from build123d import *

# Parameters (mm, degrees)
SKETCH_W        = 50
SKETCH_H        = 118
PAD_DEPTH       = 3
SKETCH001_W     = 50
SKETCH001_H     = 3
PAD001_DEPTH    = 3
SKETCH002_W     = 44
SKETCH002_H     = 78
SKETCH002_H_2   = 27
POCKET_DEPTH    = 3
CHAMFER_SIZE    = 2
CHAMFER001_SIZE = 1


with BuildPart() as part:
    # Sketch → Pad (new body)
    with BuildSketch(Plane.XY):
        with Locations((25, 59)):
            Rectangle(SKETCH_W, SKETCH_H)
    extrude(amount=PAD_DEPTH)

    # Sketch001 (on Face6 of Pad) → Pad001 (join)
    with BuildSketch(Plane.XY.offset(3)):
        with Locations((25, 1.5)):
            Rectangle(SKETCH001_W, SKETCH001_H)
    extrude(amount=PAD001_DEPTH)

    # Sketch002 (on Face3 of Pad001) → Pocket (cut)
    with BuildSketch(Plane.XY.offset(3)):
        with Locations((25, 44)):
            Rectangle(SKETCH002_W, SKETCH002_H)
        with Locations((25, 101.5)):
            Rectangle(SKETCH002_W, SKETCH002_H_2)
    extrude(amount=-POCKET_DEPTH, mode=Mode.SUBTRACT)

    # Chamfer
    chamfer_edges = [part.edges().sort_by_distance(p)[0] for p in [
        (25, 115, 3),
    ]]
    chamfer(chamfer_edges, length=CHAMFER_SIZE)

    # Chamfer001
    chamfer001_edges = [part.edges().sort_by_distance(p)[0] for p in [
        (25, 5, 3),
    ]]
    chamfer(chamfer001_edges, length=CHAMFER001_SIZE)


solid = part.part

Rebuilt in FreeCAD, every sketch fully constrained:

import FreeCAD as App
import Part
import Sketcher
from FreeCAD import Vector


def edges_at(feature, points):
    """Names of the edges that pass closest to the given points."""
    edges = feature.Shape.Edges
    near = lambda p: min(range(len(edges)), key=lambda i: edges[i].distToShape(Part.Vertex(*p))[0])
    return sorted({f"Edge{near(p) + 1}" for p in points})


def add_polygon(sketch, points):
    """Adds a closed chain of lines whose ends are joined by coincident constraints."""
    first, n = sketch.GeometryCount, len(points)
    for a, b in zip(points, points[1:] + points[:1]):
        sketch.addGeometry(Part.LineSegment(App.Vector(*a, 0), App.Vector(*b, 0)), False)
    for i in range(n):
        sketch.addConstraint(Sketcher.Constraint("Coincident", first + i, 2, first + (i + 1) % n, 1))

doc = App.newDocument("Part")
body = doc.addObject("PartDesign::Body", "Body")

sketch1 = body.newObject("Sketcher::SketchObject", "Sketch")
sketch1.AttachmentSupport = (doc.getObject("XY_Plane"), [""])
sketch1.MapMode = "FlatFace"
add_polygon(sketch1, [(0, 118), (0, 0), (50, 0), (50, 118)])
sketch1.addConstraint([
    Sketcher.Constraint("Vertical", 0),
    Sketcher.Constraint("Horizontal", 1),
    Sketcher.Constraint("Vertical", 2),
    Sketcher.Constraint("Horizontal", 3),
    Sketcher.Constraint("Coincident", 0, 2, -1, 1),
    Sketcher.Constraint("DistanceX", 1, 1, 1, 2, 50.0),
    Sketcher.Constraint("DistanceY", 0, 2, 0, 1, 118.0),
])
pad1 = body.newObject("PartDesign::Pad", "Pad")
pad1.Profile = sketch1
pad1.Length = 3

sketch2 = body.newObject("Sketcher::SketchObject", "Sketch001")
sketch2.AttachmentSupport = (doc.getObject("XY_Plane"), [""])
sketch2.MapMode = "FlatFace"
sketch2.AttachmentOffset = App.Placement(Vector(0, 0, 3), App.Rotation())
add_polygon(sketch2, [(0, 3), (0, 0), (50, 0), (50, 3)])
sketch2.addConstraint([
    Sketcher.Constraint("Vertical", 0),
    Sketcher.Constraint("Horizontal", 1),
    Sketcher.Constraint("Vertical", 2),
    Sketcher.Constraint("Horizontal", 3),
    Sketcher.Constraint("Coincident", 0, 2, -1, 1),
    Sketcher.Constraint("DistanceX", 1, 1, 1, 2, 50.0),
    Sketcher.Constraint("DistanceY", 0, 2, 0, 1, 3.0),
])
pad2 = body.newObject("PartDesign::Pad", "Pad001")
pad2.Profile = sketch2
pad2.Length = 3

sketch3 = body.newObject("Sketcher::SketchObject", "Sketch002")
sketch3.AttachmentSupport = (doc.getObject("XY_Plane"), [""])
sketch3.MapMode = "FlatFace"
sketch3.AttachmentOffset = App.Placement(Vector(0, 0, 3), App.Rotation())
add_polygon(sketch3, [(3, 83), (3, 5), (47, 5), (47, 83)])
add_polygon(sketch3, [(3, 115), (3, 88), (47, 88), (47, 115)])
sketch3.addConstraint([
    Sketcher.Constraint("Vertical", 0),
    Sketcher.Constraint("Horizontal", 1),
    Sketcher.Constraint("Vertical", 2),
    Sketcher.Constraint("Horizontal", 3),
    Sketcher.Constraint("Vertical", 4),
    Sketcher.Constraint("Horizontal", 5),
    Sketcher.Constraint("Vertical", 6),
    Sketcher.Constraint("Horizontal", 7),
    Sketcher.Constraint("Vertical", 3, 2, 4, 2),
    Sketcher.Constraint("Vertical", 2, 2, 5, 2),
    Sketcher.Constraint("DistanceX", 1, 1, 1, 2, 44.0),
    Sketcher.Constraint("DistanceY", 0, 2, 0, 1, 78.0),
    Sketcher.Constraint("DistanceY", 4, 2, 4, 1, 27.0),
    Sketcher.Constraint("DistanceX", -1, 1, 0, 2, 3.0),
    Sketcher.Constraint("DistanceY", -1, 1, 0, 2, 5.0),
    Sketcher.Constraint("DistanceY", -1, 1, 4, 2, 88.0),
])
pocket1 = body.newObject("PartDesign::Pocket", "Pocket")
pocket1.Profile = sketch3
pocket1.Length = 3
doc.recompute()

chamfer = body.newObject("PartDesign::Chamfer", "Chamfer")
chamfer.Base = (pocket1, edges_at(pocket1, [(25, 115, 3)]))
chamfer.Size = 2
doc.recompute()

chamfer2 = body.newObject("PartDesign::Chamfer", "Chamfer001")
chamfer2.Base = (chamfer, edges_at(chamfer, [(25, 5, 3)]))
chamfer2.Size = 1

doc.recompute()
